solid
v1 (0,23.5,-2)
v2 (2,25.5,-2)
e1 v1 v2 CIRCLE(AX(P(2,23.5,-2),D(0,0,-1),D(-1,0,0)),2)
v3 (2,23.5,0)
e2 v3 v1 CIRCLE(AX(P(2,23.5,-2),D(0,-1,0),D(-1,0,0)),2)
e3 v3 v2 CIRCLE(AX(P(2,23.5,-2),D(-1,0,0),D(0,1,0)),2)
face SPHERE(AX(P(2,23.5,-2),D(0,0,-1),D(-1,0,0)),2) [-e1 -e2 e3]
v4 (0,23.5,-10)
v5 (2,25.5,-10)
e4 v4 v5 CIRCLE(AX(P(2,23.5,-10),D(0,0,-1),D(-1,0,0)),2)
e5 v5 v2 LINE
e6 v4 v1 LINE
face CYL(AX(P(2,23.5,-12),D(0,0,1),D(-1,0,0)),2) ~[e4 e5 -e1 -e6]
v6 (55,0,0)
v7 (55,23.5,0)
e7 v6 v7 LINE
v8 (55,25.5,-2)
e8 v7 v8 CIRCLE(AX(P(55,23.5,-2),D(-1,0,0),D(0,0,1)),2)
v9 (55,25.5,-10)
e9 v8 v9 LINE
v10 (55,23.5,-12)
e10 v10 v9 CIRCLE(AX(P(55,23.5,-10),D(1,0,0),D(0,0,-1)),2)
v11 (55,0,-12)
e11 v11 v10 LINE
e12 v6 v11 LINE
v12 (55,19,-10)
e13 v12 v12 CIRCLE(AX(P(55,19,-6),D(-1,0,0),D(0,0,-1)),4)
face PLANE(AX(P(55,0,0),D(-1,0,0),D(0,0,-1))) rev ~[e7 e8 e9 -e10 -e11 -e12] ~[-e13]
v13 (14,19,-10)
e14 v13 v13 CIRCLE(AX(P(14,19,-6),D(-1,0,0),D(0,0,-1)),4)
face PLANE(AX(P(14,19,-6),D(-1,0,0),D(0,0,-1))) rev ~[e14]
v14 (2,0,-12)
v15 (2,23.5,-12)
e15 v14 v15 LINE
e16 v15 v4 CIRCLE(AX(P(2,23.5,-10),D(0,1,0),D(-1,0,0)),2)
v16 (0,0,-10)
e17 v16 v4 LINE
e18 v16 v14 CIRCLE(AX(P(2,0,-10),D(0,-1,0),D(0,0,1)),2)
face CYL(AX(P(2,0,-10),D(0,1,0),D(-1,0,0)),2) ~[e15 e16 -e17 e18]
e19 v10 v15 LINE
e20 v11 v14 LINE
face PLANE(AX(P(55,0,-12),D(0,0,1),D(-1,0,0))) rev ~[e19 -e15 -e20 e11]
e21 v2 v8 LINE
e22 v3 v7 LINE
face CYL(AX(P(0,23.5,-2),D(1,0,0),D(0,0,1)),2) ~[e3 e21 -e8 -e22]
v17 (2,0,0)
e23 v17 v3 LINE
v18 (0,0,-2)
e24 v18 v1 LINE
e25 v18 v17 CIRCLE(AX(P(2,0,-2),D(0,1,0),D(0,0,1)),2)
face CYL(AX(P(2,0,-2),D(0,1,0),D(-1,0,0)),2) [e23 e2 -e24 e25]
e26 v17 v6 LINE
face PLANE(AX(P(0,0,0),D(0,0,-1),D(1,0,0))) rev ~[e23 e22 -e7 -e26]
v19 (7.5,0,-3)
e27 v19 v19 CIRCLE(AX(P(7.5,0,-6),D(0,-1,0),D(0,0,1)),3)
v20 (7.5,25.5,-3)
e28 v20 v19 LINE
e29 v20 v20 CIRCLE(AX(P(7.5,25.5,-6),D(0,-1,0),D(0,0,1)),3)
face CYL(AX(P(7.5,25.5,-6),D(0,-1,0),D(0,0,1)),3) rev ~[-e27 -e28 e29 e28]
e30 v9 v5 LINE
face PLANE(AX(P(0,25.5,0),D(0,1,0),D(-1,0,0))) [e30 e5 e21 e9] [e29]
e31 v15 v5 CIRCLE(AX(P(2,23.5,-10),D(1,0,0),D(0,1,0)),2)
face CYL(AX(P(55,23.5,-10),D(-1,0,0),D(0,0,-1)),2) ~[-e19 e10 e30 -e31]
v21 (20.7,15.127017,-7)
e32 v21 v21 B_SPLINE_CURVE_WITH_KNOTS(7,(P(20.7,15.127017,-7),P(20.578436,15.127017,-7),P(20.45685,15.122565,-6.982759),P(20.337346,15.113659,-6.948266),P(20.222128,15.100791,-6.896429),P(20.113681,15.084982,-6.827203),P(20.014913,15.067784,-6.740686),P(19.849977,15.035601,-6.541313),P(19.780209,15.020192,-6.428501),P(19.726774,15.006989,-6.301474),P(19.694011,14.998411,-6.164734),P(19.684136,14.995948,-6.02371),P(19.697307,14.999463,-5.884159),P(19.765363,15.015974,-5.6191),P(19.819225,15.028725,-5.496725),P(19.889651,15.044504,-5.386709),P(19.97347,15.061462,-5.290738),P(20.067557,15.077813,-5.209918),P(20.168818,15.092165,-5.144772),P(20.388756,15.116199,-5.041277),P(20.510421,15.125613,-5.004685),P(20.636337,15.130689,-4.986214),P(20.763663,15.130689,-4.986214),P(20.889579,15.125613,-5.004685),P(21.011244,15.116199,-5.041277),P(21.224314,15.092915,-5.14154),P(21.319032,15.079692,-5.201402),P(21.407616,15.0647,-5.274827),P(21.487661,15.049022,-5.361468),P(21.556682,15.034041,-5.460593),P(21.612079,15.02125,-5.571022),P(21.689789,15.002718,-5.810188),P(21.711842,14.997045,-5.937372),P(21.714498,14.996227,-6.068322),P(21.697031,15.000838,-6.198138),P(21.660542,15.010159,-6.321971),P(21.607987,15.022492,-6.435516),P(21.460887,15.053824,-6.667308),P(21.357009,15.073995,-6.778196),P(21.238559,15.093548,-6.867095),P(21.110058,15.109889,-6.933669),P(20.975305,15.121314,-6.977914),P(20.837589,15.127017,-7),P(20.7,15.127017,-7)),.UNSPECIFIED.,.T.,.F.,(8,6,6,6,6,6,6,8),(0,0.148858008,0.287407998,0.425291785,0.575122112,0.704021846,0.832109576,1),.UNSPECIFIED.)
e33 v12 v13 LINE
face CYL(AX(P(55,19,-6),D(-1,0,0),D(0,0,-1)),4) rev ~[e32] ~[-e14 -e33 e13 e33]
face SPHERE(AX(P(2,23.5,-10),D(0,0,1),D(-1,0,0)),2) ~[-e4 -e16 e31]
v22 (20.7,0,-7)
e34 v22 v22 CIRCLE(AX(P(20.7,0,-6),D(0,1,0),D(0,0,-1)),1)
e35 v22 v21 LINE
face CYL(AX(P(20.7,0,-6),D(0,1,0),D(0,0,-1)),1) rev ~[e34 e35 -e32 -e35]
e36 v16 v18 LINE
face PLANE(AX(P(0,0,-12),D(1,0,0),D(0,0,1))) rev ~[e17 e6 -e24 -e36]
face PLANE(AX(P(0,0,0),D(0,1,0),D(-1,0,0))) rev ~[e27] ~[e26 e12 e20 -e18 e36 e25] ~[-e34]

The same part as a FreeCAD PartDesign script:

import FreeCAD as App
import Part
import Sketcher

V = App.Vector


def edges_at(feature, points):
    """Names of the edges that pass closest to the given points."""
    edges = feature.Shape.Edges
    near = lambda p: min(range(len(edges)), key=lambda i: edges[i].distToShape(Part.Vertex(*p))[0])
    return sorted({f"Edge{near(p) + 1}" for p in points})

doc = App.newDocument("Part")
body = doc.addObject("PartDesign::Body", "Body")

# Sketch on XZ plane
sketch1 = body.newObject("Sketcher::SketchObject", "Sketch")
sketch1.AttachmentSupport = (doc.getObject("XZ_Plane"), [""])
sketch1.MapMode = "FlatFace"
sketch1.addGeometry([
    Part.LineSegment(V(0, -12, 0), V(0, 0, 0)),
    Part.LineSegment(V(0, 0, 0), V(55, 0, 0)),
    Part.LineSegment(V(55, 0, 0), V(55, -12, 0)),
    Part.LineSegment(V(55, -12, 0), V(0, -12, 0)),
], False)
sketch1.addConstraint([
    Sketcher.Constraint("Coincident", 0, 2, 1, 1),
    Sketcher.Constraint("Coincident", 1, 2, 2, 1),
    Sketcher.Constraint("Coincident", 2, 2, 3, 1),
    Sketcher.Constraint("Coincident", 3, 2, 0, 1),
    Sketcher.Constraint("Vertical", 0),
    Sketcher.Constraint("Horizontal", 1),
    Sketcher.Constraint("Vertical", 2),
    Sketcher.Constraint("Horizontal", 3),
    Sketcher.Constraint("Coincident", 0, 2, -1, 1),
    Sketcher.Constraint("DistanceX", 1, 1, 1, 2, 55.0),
    Sketcher.Constraint("DistanceY", 0, 1, 0, 2, 12.0),
])
pad1 = body.newObject("PartDesign::Pad", "Pad")
pad1.Profile = sketch1
pad1.Length = 25.5
pad1.Reversed = True

# Sketch on XZ plane
sketch2 = body.newObject("Sketcher::SketchObject", "Sketch001")
sketch2.AttachmentSupport = (doc.getObject("XZ_Plane"), [""])
sketch2.MapMode = "FlatFace"
sketch2.AttachmentOffset = App.Placement(V(0, 0, -25.5), App.Rotation())
sketch2.addGeometry(Part.Circle(V(7.5, -6, 0), V(0, 0, 1), 3), False)
sketch2.addConstraint([
    Sketcher.Constraint("Diameter", 0, 6.0),
    Sketcher.Constraint("DistanceY", 0, 3, -1, 1, 6.0),
    Sketcher.Constraint("DistanceX", -1, 1, 0, 3, 7.5),
])
doc.recompute()
hole = body.newObject("PartDesign::Hole", "Hole")
hole.Profile = sketch2
hole.ThreadType = "None"
hole.Diameter = 6
hole.DepthType = "ThroughAll"
hole.Reversed = True

# Sketch on YZ plane
sketch3 = body.newObject("Sketcher::SketchObject", "Sketch002")
sketch3.AttachmentSupport = (doc.getObject("YZ_Plane"), [""])
sketch3.MapMode = "FlatFace"
sketch3.AttachmentOffset = App.Placement(V(0, 0, 55), App.Rotation())
sketch3.addGeometry(Part.Circle(V(19, -6, 0), V(0, 0, 1), 4), False)
sketch3.addConstraint([
    Sketcher.Constraint("Diameter", 0, 8.0),
    Sketcher.Constraint("DistanceX", -1, 1, 0, 3, 19.0),
    Sketcher.Constraint("DistanceY", 0, 3, -1, 1, 6.0),
])
doc.recompute()
hole2 = body.newObject("PartDesign::Hole", "Hole001")
hole2.Profile = sketch3
hole2.ThreadType = "None"
hole2.Diameter = 8
hole2.DepthType = "Dimension"
hole2.Depth = 41
hole2.DrillPoint = "Flat"

# Sketch on XZ plane
sketch4 = body.newObject("Sketcher::SketchObject", "Sketch003")
sketch4.AttachmentSupport = (doc.getObject("XZ_Plane"), [""])
sketch4.MapMode = "FlatFace"
sketch4.addGeometry(Part.Circle(V(20.7, -6, 0), V(0, 0, 1), 1), False)
sketch4.addConstraint([
    Sketcher.Constraint("Diameter", 0, 2.0),
    Sketcher.Constraint("DistanceY", 0, 3, -1, 1, 6.0),
    Sketcher.Constraint("DistanceX", -1, 1, 0, 3, 20.7),
])
doc.recompute()
hole3 = body.newObject("PartDesign::Hole", "Hole002")
hole3.Profile = sketch4
hole3.ThreadType = "None"
hole3.Diameter = 2
hole3.DepthType = "Dimension"
hole3.Depth = 16
hole3.DrillPoint = "Flat"
doc.recompute()

fillet = body.newObject("PartDesign::Fillet", "Fillet")
fillet.Base = (hole3, edges_at(hole3, [
    (0, 25.5, -6),
    (0, 12.75, 0),
    (0, 12.75, -12),
    (27.5, 25.5, 0),
    (27.5, 25.5, -12),
]))
fillet.Radius = 2

doc.recompute()
